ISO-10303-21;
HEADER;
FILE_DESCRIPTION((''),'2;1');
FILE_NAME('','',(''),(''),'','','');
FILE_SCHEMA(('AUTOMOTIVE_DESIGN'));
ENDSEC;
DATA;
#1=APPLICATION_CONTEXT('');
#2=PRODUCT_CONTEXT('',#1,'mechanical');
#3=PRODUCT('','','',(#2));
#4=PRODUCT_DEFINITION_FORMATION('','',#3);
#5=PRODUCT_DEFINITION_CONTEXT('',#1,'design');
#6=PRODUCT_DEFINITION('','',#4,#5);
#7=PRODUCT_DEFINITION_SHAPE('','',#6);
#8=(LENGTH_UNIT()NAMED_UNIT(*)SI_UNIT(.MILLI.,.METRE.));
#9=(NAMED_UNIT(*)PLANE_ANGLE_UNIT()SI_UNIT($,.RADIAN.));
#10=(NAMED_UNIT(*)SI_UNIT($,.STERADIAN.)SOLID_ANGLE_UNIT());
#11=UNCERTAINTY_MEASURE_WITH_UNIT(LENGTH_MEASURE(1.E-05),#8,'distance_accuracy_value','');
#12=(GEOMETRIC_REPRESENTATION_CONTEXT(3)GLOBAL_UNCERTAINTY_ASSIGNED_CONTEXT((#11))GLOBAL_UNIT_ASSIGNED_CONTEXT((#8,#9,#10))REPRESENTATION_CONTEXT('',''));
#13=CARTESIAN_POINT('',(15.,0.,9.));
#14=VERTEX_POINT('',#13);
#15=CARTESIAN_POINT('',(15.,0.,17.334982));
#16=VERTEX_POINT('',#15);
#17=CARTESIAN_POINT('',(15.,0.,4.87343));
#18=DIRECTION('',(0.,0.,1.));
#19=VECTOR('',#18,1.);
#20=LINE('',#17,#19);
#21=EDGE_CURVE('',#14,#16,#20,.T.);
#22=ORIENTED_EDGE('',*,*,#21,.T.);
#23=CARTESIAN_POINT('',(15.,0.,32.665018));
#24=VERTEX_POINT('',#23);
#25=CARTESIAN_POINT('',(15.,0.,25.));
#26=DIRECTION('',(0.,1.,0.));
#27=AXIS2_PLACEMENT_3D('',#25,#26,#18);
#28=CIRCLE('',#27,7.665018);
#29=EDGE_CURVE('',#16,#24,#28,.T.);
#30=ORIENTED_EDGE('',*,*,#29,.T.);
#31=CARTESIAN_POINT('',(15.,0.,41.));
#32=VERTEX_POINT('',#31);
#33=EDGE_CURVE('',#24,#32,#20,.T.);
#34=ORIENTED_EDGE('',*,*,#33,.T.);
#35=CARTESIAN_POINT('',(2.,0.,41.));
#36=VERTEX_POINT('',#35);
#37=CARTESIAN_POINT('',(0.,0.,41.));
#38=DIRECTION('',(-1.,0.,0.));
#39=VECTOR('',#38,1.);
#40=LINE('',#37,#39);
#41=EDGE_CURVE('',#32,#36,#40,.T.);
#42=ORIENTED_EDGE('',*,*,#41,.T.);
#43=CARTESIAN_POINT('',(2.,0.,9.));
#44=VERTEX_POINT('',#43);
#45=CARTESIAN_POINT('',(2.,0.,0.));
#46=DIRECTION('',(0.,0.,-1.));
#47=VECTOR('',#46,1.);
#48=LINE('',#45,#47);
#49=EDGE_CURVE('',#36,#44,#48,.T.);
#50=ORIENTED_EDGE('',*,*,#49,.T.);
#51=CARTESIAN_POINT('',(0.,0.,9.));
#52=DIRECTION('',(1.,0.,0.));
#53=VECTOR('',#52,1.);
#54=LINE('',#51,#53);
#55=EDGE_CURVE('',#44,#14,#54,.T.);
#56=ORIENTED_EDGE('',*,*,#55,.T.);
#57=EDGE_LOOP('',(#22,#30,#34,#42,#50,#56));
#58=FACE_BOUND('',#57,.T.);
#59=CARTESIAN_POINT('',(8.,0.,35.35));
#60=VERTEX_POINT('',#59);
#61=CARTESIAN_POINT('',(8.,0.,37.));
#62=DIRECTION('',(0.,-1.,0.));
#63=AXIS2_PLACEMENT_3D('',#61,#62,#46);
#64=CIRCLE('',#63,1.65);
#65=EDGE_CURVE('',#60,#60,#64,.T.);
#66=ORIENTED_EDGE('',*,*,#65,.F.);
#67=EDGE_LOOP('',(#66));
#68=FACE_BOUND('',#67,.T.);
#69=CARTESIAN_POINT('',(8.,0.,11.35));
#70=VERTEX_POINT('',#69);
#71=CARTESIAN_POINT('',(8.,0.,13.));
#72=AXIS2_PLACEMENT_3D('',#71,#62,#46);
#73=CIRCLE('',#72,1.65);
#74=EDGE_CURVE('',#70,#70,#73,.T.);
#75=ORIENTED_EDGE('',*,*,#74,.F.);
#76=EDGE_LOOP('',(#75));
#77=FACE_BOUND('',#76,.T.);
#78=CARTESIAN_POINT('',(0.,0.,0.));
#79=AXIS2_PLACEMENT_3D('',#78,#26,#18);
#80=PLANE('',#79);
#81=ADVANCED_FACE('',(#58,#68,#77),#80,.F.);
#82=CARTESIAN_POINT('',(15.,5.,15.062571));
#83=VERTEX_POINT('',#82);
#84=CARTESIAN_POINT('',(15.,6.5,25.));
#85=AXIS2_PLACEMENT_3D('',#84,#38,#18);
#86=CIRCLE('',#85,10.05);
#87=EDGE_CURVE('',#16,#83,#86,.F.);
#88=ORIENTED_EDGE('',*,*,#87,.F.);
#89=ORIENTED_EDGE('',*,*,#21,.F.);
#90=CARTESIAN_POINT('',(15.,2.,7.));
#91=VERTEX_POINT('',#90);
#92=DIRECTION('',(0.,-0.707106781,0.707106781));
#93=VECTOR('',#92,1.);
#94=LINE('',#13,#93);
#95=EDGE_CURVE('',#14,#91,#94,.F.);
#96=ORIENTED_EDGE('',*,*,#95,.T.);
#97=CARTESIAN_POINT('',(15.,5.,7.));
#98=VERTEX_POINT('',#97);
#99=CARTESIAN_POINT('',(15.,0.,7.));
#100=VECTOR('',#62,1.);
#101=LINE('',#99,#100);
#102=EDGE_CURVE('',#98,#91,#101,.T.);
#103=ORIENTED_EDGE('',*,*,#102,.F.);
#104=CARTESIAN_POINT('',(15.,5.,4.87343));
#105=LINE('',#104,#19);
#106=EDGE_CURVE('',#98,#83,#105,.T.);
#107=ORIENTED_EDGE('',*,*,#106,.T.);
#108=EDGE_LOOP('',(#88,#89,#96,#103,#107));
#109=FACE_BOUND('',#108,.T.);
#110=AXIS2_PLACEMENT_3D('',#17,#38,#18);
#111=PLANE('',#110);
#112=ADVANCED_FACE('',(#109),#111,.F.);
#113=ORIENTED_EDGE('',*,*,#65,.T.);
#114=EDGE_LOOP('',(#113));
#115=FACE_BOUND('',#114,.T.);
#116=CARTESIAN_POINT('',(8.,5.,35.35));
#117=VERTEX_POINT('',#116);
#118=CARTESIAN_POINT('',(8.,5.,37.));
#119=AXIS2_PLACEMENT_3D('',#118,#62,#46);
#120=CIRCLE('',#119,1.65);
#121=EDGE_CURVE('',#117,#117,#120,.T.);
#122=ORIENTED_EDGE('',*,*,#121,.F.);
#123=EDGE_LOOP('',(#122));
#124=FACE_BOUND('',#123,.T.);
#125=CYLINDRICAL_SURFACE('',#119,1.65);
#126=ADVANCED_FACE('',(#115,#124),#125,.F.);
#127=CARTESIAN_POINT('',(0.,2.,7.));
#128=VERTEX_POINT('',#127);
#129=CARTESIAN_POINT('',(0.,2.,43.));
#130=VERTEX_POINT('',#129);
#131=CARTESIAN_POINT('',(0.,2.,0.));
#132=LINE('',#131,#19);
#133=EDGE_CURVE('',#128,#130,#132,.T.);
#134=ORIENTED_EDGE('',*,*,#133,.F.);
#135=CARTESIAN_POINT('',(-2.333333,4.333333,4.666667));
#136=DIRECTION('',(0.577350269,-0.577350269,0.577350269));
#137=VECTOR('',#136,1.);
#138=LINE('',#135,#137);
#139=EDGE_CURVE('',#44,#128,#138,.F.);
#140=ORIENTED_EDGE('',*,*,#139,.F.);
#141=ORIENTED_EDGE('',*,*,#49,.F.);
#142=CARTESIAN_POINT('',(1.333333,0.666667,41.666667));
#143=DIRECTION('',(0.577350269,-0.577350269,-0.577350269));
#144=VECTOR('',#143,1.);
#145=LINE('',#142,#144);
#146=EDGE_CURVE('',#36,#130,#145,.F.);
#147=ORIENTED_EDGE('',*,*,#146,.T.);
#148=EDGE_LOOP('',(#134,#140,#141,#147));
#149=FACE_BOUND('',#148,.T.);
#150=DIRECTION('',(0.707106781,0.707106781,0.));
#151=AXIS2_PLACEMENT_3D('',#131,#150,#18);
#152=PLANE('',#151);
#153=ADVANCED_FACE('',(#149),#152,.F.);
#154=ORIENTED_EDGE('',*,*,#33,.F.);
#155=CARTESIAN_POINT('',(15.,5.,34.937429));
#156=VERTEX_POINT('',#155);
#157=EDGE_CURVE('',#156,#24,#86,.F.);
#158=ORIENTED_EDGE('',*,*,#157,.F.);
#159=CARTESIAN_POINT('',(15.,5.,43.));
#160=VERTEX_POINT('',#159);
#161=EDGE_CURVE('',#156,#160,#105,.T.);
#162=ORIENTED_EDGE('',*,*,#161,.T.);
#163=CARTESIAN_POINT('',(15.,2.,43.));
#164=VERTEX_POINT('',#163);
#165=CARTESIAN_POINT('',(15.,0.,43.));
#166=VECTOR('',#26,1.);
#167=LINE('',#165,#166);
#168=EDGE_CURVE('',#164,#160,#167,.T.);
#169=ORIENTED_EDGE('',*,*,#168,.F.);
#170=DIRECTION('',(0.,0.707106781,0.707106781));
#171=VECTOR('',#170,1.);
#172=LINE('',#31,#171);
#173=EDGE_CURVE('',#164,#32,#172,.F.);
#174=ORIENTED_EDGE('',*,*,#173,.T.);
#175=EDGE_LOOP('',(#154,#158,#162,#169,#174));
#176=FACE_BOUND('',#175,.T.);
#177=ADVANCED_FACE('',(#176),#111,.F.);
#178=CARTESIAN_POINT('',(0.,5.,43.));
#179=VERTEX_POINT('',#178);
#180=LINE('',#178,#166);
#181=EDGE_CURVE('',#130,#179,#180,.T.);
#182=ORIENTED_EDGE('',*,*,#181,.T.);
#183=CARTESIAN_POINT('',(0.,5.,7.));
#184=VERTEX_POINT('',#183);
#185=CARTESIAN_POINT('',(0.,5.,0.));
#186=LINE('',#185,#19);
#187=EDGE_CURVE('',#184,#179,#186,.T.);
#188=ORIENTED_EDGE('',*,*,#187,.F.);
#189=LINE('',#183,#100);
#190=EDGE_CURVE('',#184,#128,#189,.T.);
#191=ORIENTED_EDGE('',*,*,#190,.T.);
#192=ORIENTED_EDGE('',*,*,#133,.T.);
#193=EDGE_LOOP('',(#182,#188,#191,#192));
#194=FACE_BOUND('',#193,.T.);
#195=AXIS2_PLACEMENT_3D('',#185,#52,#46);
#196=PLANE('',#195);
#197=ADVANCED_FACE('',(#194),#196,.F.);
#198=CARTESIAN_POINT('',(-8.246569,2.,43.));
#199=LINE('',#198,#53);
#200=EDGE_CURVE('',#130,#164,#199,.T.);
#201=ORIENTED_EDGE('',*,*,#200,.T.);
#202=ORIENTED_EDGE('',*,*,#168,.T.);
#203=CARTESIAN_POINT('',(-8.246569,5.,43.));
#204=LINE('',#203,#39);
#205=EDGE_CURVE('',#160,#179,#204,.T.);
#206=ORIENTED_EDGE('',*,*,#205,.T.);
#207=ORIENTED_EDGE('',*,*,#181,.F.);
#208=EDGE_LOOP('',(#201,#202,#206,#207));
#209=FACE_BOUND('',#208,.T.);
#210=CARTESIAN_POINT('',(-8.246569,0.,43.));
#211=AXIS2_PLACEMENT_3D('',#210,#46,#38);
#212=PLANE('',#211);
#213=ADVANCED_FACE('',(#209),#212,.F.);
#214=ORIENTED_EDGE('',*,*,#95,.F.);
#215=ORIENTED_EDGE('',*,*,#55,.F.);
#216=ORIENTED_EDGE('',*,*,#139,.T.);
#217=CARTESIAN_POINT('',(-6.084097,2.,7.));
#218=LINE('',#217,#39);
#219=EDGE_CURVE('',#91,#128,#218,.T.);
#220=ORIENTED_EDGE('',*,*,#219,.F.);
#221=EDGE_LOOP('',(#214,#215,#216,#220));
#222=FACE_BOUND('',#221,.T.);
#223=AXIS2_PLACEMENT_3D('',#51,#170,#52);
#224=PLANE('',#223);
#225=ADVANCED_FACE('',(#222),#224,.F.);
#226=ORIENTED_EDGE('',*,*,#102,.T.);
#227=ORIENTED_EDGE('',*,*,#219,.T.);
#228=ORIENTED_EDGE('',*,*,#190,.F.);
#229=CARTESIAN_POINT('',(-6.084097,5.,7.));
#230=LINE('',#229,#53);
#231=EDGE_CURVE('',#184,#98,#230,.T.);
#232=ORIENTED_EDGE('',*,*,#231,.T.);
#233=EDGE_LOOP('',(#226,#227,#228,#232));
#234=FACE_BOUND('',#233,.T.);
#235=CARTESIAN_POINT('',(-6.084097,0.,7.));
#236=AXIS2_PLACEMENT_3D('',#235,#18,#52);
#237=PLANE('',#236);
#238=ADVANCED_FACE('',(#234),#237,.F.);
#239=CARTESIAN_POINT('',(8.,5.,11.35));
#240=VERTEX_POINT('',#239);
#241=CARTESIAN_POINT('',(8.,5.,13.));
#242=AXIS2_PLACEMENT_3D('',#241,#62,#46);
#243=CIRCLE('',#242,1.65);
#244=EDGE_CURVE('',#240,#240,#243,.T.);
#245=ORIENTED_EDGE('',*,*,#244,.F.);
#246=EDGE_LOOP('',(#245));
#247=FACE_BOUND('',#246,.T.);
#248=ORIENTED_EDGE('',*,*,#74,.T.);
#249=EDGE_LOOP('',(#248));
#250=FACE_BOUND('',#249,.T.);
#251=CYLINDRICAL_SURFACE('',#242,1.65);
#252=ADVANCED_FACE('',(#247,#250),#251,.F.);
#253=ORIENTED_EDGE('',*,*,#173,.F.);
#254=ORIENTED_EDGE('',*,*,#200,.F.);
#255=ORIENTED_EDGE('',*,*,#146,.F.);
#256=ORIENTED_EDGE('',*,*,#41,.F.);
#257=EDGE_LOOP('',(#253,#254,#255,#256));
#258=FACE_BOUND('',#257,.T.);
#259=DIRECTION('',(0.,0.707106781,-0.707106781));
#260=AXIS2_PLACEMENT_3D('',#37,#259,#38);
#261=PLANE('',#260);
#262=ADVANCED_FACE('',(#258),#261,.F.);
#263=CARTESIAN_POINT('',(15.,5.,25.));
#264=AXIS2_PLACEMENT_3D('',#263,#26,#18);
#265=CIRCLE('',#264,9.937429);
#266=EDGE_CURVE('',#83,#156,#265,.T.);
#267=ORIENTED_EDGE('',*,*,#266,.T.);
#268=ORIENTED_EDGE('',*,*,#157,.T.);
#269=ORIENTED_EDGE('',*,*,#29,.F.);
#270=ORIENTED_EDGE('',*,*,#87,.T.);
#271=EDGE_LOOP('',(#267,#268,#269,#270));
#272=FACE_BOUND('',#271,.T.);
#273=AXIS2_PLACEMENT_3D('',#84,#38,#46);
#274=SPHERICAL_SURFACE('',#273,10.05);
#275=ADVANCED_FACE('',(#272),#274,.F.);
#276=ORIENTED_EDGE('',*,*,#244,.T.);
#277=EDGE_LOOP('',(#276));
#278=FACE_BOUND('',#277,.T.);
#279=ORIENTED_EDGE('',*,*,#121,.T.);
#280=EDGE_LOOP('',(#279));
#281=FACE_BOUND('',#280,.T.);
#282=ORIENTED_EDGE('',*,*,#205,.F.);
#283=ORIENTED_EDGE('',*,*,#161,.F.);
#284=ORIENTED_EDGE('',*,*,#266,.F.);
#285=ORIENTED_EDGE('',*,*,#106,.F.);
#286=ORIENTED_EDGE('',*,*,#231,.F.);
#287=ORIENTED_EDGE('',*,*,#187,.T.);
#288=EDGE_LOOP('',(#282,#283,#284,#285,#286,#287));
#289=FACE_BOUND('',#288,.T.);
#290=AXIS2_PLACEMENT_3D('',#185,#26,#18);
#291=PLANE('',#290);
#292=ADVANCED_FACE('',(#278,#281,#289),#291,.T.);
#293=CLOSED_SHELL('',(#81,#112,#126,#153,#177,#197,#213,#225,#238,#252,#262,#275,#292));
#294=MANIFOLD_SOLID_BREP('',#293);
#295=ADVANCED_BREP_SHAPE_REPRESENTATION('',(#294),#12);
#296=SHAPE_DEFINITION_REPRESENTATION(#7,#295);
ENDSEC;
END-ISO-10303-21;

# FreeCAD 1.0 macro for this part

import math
import FreeCAD as App
import Part
import Sketcher
from FreeCAD import Vector


def edges_at(feature, points):
    """Names of the edges that pass closest to the given points."""
    edges = feature.Shape.Edges
    near = lambda p: min(range(len(edges)), key=lambda i: edges[i].distToShape(Part.Vertex(*p))[0])
    return sorted({f"Edge{near(p) + 1}" for p in points})


def add_polygon(sketch, points):
    """Adds a closed chain of lines whose ends are joined by coincident constraints."""
    first, n = sketch.GeometryCount, len(points)
    for a, b in zip(points, points[1:] + points[:1]):
        sketch.addGeometry(Part.LineSegment(App.Vector(*a, 0), App.Vector(*b, 0)), False)
    for i in range(n):
        sketch.addConstraint(Sketcher.Constraint("Coincident", first + i, 2, first + (i + 1) % n, 1))

doc = App.newDocument("Part")
body = doc.addObject("PartDesign::Body", "Body")

sketch1 = body.newObject("Sketcher::SketchObject", "Sketch")
sketch1.AttachmentSupport = (doc.getObject("XZ_Plane"), [""])
sketch1.MapMode = "FlatFace"
add_polygon(sketch1, [(0, 0), (0, 50), (30, 50), (30, 0)])
sketch1.addConstraint([
    Sketcher.Constraint("Vertical", 0),
    Sketcher.Constraint("Horizontal", 1),
    Sketcher.Constraint("Vertical", 2),
    Sketcher.Constraint("Horizontal", 3),
    Sketcher.Constraint("Coincident", 3, 2, -1, 1),
    Sketcher.Constraint("DistanceX", 1, 1, 1, 2, 30.0),
    Sketcher.Constraint("DistanceY", 0, 1, 0, 2, 50.0),
])
pad1 = body.newObject("PartDesign::Pad", "Pad")
pad1.Profile = sketch1
pad1.Length = 5
pad1.Reversed = True

sketch2 = body.newObject("Sketcher::SketchObject", "Sketch001")
sketch2.AttachmentSupport = (doc.getObject("XZ_Plane"), [""])
sketch2.MapMode = "FlatFace"
sketch2.AttachmentOffset = App.Placement(Vector(0, 0, -6.5), App.Rotation())
sketch2.addGeometry([
    Part.LineSegment(Vector(25, 25, 0), Vector(5, 25, 0)),
    Part.ArcOfCircle(Part.Circle(Vector(15, 25, 0), Vector(0, 0, 1), 10), math.radians(0), math.radians(180)),
], False)
sketch2.addGeometry(Part.LineSegment(Vector(5, 25, 0), Vector(25, 25, 0)), True)
sketch2.addConstraint([
    Sketcher.Constraint("Coincident", 0, 1, 1, 1),
    Sketcher.Constraint("Coincident", 1, 2, 0, 2),
    Sketcher.Constraint("Horizontal", 0),
    Sketcher.Constraint("Horizontal", 2),
    Sketcher.Constraint("Coincident", 2, 1, 1, 2),
    Sketcher.Constraint("Horizontal", 1, 3, 0, 1),
    Sketcher.Constraint("Equal", 0, 2),
    Sketcher.Constraint("Radius", 1, 10.05),
    Sketcher.Constraint("DistanceX", -1, 1, 1, 3, 15.0),
    Sketcher.Constraint("DistanceY", -1, 1, 1, 3, 25.0),
])
groove = body.newObject("PartDesign::Groove", "Groove")
groove.Profile = sketch2
groove.ReferenceAxis = (sketch2, ["Axis0"])
groove.Angle = 360

sketch3 = body.newObject("Sketcher::SketchObject", "Sketch002")
sketch3.AttachmentSupport = (doc.getObject("XZ_Plane"), [""])
sketch3.MapMode = "FlatFace"
sketch3.addGeometry([
    Part.Circle(Vector(8, 37, 0), Vector(0, 0, 1), 1.6),
    Part.Circle(Vector(22, 37, 0), Vector(0, 0, 1), 1.6),
    Part.Circle(Vector(8, 13, 0), Vector(0, 0, 1), 1.6),
    Part.Circle(Vector(22, 13, 0), Vector(0, 0, 1), 1.6),
], False)
sketch3.addConstraint([
    Sketcher.Constraint("Equal", 0, 1),
    Sketcher.Constraint("Equal", 1, 2),
    Sketcher.Constraint("Equal", 2, 3),
    Sketcher.Constraint("Horizontal", 0, 3, 1, 3),
    Sketcher.Constraint("Horizontal", 2, 3, 3, 3),
    Sketcher.Constraint("Vertical", 0, 3, 2, 3),
    Sketcher.Constraint("Vertical", 1, 3, 3, 3),
    Sketcher.Constraint("Diameter", 0, 3.3),
    Sketcher.Constraint("DistanceX", -1, 1, 0, 3, 8.0),
    Sketcher.Constraint("DistanceY", -1, 1, 0, 3, 37.0),
    Sketcher.Constraint("DistanceX", -1, 1, 1, 3, 22.0),
    Sketcher.Constraint("DistanceY", -1, 1, 2, 3, 13.0),
])
pocket1 = body.newObject("PartDesign::Pocket", "Pocket")
pocket1.Profile = sketch3
pocket1.Type = "ThroughAll"

sketch4 = body.newObject("Sketcher::SketchObject", "Sketch003")
sketch4.AttachmentSupport = (doc.getObject("XZ_Plane"), [""])
sketch4.MapMode = "FlatFace"
sketch4.AttachmentOffset = App.Placement(Vector(0, 0, -5), App.Rotation())
add_polygon(sketch4, [(-6, -3), (-6, 7), (35, 7), (35, -3)])
add_polygon(sketch4, [(-8, 43), (-8, 54), (39, 54), (39, 43)])
sketch4.addConstraint([
    Sketcher.Constraint("Vertical", 0),
    Sketcher.Constraint("Horizontal", 1),
    Sketcher.Constraint("Vertical", 2),
    Sketcher.Constraint("Horizontal", 3),
    Sketcher.Constraint("Vertical", 4),
    Sketcher.Constraint("Horizontal", 5),
    Sketcher.Constraint("Vertical", 6),
    Sketcher.Constraint("Horizontal", 7),
    Sketcher.Constraint("DistanceY", -1, 1, 0, 2, 7.0),
    Sketcher.Constraint("DistanceY", -1, 1, 6, 2, 43.0),
    Sketcher.Constraint("DistanceX", 1, 1, 1, 2, 41.2344),
    Sketcher.Constraint("DistanceX", -1, 1, 5, 2, 39.426099),
    Sketcher.Constraint("DistanceX", 5, 1, 5, 2, 47.672668),
    Sketcher.Constraint("DistanceY", 0, 1, 0, 2, 9.681975),
    Sketcher.Constraint("DistanceY", 4, 1, 4, 2, 11.058093),
    Sketcher.Constraint("DistanceX", 4, 2, 0, 2, 2.162472),
])
pocket2 = body.newObject("PartDesign::Pocket", "Pocket001")
pocket2.Profile = sketch4
pocket2.Type = "ThroughAll"
pocket2.Reversed = True

sketch5 = body.newObject("Sketcher::SketchObject", "Sketch004")
sketch5.AttachmentSupport = (doc.getObject("XZ_Plane"), [""])
sketch5.MapMode = "FlatFace"
sketch5.AttachmentOffset = App.Placement(Vector(0, 0, -5), App.Rotation())
add_polygon(sketch5, [(15, 5), (15, 45), (36, 45), (36, 5)])
sketch5.addConstraint([
    Sketcher.Constraint("Vertical", 0),
    Sketcher.Constraint("Horizontal", 1),
    Sketcher.Constraint("Vertical", 2),
    Sketcher.Constraint("Horizontal", 3),
    Sketcher.Constraint("DistanceX", -1, 1, 0, 2, 15.0),
    Sketcher.Constraint("DistanceX", 1, 1, 1, 2, 20.505917),
    Sketcher.Constraint("DistanceY", 0, 1, 0, 2, 40.348213),
    Sketcher.Constraint("DistanceY", -1, 1, 2, 2, 4.87343),
])
pocket3 = body.newObject("PartDesign::Pocket", "Pocket002")
pocket3.Profile = sketch5
pocket3.Type = "ThroughAll"
pocket3.Reversed = True
doc.recompute()

chamfer = body.newObject("PartDesign::Chamfer", "Chamfer")
chamfer.Base = (pocket3, edges_at(pocket3, [(0, 0, 25), (7.5, 0, 7), (7.5, 0, 43)]))
chamfer.Size = 2

doc.recompute()
